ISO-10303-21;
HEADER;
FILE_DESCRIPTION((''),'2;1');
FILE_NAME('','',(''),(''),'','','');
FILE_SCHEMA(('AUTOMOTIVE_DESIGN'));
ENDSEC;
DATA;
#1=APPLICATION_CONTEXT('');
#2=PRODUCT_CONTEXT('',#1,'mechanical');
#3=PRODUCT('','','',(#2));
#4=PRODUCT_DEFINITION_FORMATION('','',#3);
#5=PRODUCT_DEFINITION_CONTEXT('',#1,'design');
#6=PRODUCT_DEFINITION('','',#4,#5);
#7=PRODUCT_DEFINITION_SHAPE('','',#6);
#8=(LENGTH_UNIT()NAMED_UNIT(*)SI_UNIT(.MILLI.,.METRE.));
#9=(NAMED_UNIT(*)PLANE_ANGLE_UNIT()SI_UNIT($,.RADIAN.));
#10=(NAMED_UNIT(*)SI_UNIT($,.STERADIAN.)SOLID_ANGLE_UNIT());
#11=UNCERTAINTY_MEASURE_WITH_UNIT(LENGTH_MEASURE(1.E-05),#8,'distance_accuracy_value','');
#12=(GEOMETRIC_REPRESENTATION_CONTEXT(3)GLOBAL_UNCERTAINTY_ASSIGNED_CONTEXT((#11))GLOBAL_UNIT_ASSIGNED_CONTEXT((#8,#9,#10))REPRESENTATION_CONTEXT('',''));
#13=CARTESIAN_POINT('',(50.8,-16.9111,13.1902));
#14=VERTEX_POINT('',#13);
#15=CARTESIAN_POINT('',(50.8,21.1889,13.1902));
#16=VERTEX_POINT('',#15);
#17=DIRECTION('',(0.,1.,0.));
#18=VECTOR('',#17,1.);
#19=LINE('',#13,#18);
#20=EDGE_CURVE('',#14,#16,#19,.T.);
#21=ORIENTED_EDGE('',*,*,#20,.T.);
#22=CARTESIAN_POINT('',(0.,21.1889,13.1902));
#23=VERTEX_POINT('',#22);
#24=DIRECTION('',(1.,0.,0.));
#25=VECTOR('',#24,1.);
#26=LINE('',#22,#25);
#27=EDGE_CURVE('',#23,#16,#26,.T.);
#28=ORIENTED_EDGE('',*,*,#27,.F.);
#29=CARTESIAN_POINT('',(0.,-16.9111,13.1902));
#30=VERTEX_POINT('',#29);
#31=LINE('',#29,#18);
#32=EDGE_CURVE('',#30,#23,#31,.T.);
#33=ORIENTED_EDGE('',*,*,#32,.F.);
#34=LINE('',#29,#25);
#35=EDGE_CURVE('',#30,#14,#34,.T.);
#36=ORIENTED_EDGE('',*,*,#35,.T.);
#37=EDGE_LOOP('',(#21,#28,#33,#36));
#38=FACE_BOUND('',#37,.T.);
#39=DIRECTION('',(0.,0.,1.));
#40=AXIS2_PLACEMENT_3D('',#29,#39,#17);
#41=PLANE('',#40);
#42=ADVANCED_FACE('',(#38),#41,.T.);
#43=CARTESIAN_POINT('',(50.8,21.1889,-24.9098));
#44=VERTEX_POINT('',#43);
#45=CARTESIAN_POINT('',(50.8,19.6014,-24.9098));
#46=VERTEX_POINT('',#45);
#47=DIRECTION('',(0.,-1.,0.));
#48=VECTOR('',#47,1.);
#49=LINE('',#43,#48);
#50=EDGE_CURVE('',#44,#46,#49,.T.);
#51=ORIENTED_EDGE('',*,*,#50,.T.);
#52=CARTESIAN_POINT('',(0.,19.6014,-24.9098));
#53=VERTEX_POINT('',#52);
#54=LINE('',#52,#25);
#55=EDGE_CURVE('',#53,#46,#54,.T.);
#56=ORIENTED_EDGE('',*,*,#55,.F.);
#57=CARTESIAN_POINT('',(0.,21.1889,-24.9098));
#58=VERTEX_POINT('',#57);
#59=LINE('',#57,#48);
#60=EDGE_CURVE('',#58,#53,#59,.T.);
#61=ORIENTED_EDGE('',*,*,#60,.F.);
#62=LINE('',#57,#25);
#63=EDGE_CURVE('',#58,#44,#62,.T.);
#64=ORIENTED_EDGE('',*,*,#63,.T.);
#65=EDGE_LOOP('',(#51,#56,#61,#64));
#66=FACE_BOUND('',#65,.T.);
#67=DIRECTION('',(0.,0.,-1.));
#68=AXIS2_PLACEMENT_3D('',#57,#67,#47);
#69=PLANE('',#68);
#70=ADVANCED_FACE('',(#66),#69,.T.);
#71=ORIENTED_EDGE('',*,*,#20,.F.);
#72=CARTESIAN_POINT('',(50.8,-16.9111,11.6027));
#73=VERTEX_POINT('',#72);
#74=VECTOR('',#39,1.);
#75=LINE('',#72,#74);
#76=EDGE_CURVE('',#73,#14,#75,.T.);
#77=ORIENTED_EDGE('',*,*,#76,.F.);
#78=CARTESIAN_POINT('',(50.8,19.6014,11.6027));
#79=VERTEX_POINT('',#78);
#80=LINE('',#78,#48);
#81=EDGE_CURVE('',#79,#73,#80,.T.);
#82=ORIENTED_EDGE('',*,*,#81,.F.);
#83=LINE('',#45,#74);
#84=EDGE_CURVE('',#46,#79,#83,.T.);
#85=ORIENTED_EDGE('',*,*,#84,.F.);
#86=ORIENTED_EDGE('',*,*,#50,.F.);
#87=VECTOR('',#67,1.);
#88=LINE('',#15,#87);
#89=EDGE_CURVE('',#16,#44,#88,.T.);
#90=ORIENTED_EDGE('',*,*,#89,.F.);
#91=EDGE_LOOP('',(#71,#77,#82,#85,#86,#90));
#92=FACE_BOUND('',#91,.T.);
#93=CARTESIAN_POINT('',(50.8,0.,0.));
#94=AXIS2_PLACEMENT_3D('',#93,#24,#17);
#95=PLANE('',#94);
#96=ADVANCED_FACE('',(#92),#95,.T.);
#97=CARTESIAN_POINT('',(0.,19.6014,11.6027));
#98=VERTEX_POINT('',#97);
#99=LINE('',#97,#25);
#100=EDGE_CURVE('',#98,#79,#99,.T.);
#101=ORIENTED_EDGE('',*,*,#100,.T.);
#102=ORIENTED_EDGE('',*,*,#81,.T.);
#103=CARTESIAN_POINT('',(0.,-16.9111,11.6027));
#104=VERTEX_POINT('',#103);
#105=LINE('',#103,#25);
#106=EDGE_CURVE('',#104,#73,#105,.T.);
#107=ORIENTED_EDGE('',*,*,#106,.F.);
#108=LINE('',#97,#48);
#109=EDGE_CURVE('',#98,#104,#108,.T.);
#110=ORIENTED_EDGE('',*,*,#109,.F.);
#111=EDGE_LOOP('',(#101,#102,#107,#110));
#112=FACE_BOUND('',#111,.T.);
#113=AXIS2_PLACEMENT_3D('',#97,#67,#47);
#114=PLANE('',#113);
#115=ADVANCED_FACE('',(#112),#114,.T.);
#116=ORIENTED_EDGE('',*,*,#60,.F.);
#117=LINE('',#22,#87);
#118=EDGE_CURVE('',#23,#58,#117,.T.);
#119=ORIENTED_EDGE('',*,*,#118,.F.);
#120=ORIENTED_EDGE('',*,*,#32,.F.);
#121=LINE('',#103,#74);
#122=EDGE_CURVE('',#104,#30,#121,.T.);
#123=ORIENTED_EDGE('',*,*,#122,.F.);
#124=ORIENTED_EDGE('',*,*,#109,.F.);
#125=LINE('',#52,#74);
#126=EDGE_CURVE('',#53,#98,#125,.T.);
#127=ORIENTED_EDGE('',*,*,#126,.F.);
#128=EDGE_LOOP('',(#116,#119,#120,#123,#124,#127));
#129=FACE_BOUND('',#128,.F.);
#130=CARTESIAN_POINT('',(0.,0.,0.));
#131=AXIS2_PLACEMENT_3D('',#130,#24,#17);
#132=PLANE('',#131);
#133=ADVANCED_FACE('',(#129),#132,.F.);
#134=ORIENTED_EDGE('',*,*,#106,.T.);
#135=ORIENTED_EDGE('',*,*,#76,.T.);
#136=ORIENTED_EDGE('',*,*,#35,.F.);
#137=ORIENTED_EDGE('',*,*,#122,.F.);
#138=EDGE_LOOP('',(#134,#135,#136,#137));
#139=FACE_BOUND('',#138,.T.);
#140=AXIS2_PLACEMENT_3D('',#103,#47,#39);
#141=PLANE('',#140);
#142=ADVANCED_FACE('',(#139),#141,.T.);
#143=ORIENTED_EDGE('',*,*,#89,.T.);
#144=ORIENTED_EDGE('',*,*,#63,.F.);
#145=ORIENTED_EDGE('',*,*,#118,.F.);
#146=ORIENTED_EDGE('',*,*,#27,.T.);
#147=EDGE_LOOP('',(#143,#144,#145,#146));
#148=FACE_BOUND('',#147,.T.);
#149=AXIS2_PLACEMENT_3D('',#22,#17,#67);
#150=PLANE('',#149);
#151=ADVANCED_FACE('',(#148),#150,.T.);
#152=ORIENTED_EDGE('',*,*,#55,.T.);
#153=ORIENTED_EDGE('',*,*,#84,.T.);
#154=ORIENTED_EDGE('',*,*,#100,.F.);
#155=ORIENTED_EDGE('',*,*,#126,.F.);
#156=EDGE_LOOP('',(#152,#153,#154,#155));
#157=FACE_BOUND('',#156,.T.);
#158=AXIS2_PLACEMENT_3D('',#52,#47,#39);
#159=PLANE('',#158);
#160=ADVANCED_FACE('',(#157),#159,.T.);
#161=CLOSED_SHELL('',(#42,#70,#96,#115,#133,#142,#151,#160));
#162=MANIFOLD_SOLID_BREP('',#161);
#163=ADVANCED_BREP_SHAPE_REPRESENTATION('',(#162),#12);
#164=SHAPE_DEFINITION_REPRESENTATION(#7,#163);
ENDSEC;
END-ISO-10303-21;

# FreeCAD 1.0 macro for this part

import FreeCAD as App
import Part
import Sketcher
from FreeCAD import Vector
Q = App.Units.Quantity


def add_polygon(sketch, points):
    """Adds a closed chain of lines whose ends are joined by coincident constraints."""
    first, n = sketch.GeometryCount, len(points)
    for a, b in zip(points, points[1:] + points[:1]):
        sketch.addGeometry(Part.LineSegment(App.Vector(*a, 0), App.Vector(*b, 0)), False)
    for i in range(n):
        sketch.addConstraint(Sketcher.Constraint("Coincident", first + i, 2, first + (i + 1) % n, 1))

doc = App.newDocument("Part")
body = doc.addObject("PartDesign::Body", "Body")

# Sketch on YZ plane
sketch1 = body.newObject("Sketcher::SketchObject", "Sketch")
sketch1.AttachmentSupport = (doc.getObject("YZ_Plane"), [""])
sketch1.MapMode = "FlatFace"
add_polygon(sketch1, [(21.1889, 13.1902), (-16.9111, 13.1902), (-16.9111, 11.6027), (19.6014, 11.6027), (19.6014, -24.9098), (21.1889, -24.9098)])  # lines 0-5
sketch1.addConstraint([
    Sketcher.Constraint("Horizontal", 0),
    Sketcher.Constraint("Vertical", 1),
    Sketcher.Constraint("Horizontal", 2),
    Sketcher.Constraint("Vertical", 3),
    Sketcher.Constraint("Horizontal", 4),
    Sketcher.Constraint("Vertical", 5),
    Sketcher.Constraint("Equal", 4, 1),
    Sketcher.Constraint("Equal", 2, 3),
    Sketcher.Constraint("DistanceX", 0, 2, 0, 1, Q("1.5 in")),
    Sketcher.Constraint("DistanceX", 2, 1, 2, 2, Q("1.4375 in")),
    Sketcher.Constraint("DistanceX", 0, 2, -1, 1, Q("0.6658 in")),
    Sketcher.Constraint("DistanceY", -1, 1, 0, 2, Q("0.5193 in")),
])
pad1 = body.newObject("PartDesign::Pad", "Pad")
pad1.Profile = sketch1
pad1.Length = Q("2 in")

doc.recompute()
